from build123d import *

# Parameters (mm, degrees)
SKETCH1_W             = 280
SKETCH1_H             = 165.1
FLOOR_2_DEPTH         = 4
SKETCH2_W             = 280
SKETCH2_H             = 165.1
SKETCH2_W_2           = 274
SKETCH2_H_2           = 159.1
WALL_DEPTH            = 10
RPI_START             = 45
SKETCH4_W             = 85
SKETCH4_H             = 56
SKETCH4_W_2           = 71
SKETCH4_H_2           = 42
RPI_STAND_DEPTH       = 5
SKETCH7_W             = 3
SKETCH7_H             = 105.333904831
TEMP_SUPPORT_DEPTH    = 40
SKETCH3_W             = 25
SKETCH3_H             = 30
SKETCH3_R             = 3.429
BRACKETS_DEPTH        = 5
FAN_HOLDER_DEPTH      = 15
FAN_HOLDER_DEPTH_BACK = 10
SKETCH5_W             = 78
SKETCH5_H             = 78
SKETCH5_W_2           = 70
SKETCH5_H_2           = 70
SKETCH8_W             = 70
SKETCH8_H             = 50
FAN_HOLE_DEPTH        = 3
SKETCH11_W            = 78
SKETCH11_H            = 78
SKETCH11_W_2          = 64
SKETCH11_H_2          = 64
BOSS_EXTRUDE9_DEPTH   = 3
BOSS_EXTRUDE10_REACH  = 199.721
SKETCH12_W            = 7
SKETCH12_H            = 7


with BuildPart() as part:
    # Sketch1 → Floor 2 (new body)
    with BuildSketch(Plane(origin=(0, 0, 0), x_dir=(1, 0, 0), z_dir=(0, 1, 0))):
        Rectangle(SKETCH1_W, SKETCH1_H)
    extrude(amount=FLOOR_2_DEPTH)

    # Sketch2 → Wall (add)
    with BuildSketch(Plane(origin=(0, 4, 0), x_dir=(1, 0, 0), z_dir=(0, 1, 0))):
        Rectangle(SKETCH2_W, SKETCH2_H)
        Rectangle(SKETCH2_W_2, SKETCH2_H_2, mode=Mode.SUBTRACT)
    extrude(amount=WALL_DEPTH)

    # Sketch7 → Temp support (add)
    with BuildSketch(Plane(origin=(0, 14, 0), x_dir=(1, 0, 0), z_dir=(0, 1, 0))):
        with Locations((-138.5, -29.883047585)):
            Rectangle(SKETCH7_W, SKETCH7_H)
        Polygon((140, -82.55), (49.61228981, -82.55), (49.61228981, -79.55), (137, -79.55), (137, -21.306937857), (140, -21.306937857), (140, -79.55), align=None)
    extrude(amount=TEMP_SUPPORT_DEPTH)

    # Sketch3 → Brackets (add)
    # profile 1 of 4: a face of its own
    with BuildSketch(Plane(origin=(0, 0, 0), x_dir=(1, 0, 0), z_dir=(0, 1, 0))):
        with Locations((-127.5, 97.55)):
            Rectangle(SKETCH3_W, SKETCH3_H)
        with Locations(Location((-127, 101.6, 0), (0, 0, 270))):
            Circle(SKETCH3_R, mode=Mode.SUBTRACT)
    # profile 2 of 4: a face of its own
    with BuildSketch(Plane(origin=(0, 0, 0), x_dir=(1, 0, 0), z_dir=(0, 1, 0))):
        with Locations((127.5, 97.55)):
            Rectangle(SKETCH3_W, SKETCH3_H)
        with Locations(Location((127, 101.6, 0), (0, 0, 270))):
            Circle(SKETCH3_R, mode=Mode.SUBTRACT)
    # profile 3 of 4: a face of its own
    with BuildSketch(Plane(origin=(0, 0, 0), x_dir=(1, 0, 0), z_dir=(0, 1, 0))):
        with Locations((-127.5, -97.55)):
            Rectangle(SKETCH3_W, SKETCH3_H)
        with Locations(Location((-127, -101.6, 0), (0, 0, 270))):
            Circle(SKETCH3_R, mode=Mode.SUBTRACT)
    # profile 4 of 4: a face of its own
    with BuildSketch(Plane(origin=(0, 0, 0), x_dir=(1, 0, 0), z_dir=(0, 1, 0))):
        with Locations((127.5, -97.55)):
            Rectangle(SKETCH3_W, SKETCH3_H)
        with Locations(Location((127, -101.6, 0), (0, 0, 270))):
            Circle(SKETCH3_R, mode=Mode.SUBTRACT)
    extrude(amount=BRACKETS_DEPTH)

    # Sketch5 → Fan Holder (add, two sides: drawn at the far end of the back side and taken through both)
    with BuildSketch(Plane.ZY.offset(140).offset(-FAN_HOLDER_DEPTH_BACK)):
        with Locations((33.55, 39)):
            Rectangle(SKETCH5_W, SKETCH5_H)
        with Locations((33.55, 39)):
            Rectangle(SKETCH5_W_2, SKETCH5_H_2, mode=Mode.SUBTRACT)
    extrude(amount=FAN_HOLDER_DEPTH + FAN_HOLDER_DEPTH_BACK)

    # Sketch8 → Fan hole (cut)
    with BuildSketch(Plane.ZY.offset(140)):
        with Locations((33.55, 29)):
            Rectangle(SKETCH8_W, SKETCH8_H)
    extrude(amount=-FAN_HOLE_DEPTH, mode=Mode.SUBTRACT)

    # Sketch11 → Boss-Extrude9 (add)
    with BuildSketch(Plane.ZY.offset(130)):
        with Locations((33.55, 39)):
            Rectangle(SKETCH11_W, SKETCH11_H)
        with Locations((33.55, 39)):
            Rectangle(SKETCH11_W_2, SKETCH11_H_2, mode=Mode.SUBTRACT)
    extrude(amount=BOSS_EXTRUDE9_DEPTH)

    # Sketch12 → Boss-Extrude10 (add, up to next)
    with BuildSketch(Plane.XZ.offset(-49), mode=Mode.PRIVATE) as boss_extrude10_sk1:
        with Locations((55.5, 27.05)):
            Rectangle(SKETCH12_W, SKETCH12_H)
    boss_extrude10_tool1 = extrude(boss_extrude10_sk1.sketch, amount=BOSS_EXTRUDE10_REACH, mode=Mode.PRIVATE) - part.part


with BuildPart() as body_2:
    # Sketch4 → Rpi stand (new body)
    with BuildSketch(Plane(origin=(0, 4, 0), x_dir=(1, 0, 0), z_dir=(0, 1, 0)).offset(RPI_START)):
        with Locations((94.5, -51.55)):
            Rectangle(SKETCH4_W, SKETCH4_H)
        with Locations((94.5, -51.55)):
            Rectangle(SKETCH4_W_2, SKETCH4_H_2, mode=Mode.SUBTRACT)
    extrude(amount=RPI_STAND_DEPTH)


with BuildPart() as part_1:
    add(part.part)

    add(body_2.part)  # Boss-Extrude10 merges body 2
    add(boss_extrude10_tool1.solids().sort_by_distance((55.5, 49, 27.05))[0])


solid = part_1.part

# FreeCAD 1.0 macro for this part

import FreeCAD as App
import Part
import Sketcher
from FreeCAD import Vector
Q = App.Units.Quantity


def add_polygon(sketch, points):
    """Adds a closed chain of lines whose ends are joined by coincident constraints."""
    first, n = sketch.GeometryCount, len(points)
    for a, b in zip(points, points[1:] + points[:1]):
        sketch.addGeometry(Part.LineSegment(App.Vector(*a, 0), App.Vector(*b, 0)), False)
    for i in range(n):
        sketch.addConstraint(Sketcher.Constraint("Coincident", first + i, 2, first + (i + 1) % n, 1))

doc = App.newDocument("Part")
body = doc.addObject("PartDesign::Body", "Body")

# Sketch on XZ plane
sketch1 = body.newObject("Sketcher::SketchObject", "Sketch")
sketch1.AttachmentSupport = (doc.getObject("XZ_Plane"), [""])
sketch1.MapMode = "FlatFace"
add_polygon(sketch1, [(-140, -83), (-140, 83), (140, 83), (140, -83)])  # lines 0-3
sketch1.addConstraint(Sketcher.Constraint("Vertical", 0))
sketch1.addConstraint(Sketcher.Constraint("Horizontal", 1))
sketch1.addConstraint(Sketcher.Constraint("Vertical", 2))
sketch1.addConstraint(Sketcher.Constraint("Horizontal", 3))
sketch1.addConstraint(Sketcher.Constraint("Symmetric", 0, 2, 2, 2, -1, 1))
sketch1.addConstraint(Sketcher.Constraint("DistanceX", 1, 1, 1, 2, Q("280 mm")))
sketch1.addConstraint(Sketcher.Constraint("DistanceY", 0, 1, 0, 2, Q("165.1 mm")))
pad1 = body.newObject("PartDesign::Pad", "Pad")
pad1.Profile = sketch1
pad1.Length = 4
pad1.Reversed = True

# Sketch on XZ plane
sketch2 = body.newObject("Sketcher::SketchObject", "Sketch001")
sketch2.AttachmentSupport = (doc.getObject("XZ_Plane"), [""])
sketch2.MapMode = "FlatFace"
sketch2.AttachmentOffset = App.Placement(Vector(0, 0, -4), App.Rotation())
add_polygon(sketch2, [(-140, -83), (-140, 83), (140, 83), (140, -83)])  # lines 0-3
add_polygon(sketch2, [(137, 80), (-137, 80), (-137, -80), (137, -80)])  # lines 4-7
sketch2.addConstraint(Sketcher.Constraint("Vertical", 0))
sketch2.addConstraint(Sketcher.Constraint("Horizontal", 1))
sketch2.addConstraint(Sketcher.Constraint("Vertical", 2))
sketch2.addConstraint(Sketcher.Constraint("Horizontal", 3))
sketch2.addConstraint(Sketcher.Constraint("Horizontal", 4))
sketch2.addConstraint(Sketcher.Constraint("Vertical", 5))
sketch2.addConstraint(Sketcher.Constraint("Horizontal", 6))
sketch2.addConstraint(Sketcher.Constraint("Vertical", 7))
sketch2.addConstraint(Sketcher.Constraint("Symmetric", 0, 2, 2, 2, -1, 1))
sketch2.addConstraint(Sketcher.Constraint("Symmetric", 4, 2, 6, 2, -1, 1))
sketch2.addConstraint(Sketcher.Constraint("DistanceX", 1, 1, 1, 2, Q("280 mm")))
sketch2.addConstraint(Sketcher.Constraint("DistanceX", 4, 2, 4, 1, Q("274 mm")))
sketch2.addConstraint(Sketcher.Constraint("DistanceY", 0, 1, 0, 2, Q("165.1 mm")))
sketch2.addConstraint(Sketcher.Constraint("DistanceY", 5, 2, 5, 1, Q("159.1 mm")))
pad2 = body.newObject("PartDesign::Pad", "Pad001")
pad2.Profile = sketch2
pad2.Length = 10
pad2.Reversed = True

# Sketch on XZ plane
sketch3 = body.newObject("Sketcher::SketchObject", "Sketch002")
sketch3.AttachmentSupport = (doc.getObject("XZ_Plane"), [""])
sketch3.MapMode = "FlatFace"
sketch3.AttachmentOffset = App.Placement(Vector(0, 0, -14), App.Rotation())
add_polygon(sketch3, [(-140, -22.8), (-140, 82.6), (-137, 82.6), (-137, -22.8)])  # lines 0-3
add_polygon(sketch3, [(49.6, 82.5), (140, 82.5), (140, 21.3), (137, 21.3), (137, 79.5), (49.6, 79.5)])  # lines 4-9
sketch3.addConstraint(Sketcher.Constraint("Vertical", 0))
sketch3.addConstraint(Sketcher.Constraint("Horizontal", 1))
sketch3.addConstraint(Sketcher.Constraint("Vertical", 2))
sketch3.addConstraint(Sketcher.Constraint("Horizontal", 3))
sketch3.addConstraint(Sketcher.Constraint("Horizontal", 4))
sketch3.addConstraint(Sketcher.Constraint("Vertical", 5))
sketch3.addConstraint(Sketcher.Constraint("Horizontal", 6))
sketch3.addConstraint(Sketcher.Constraint("Vertical", 7))
sketch3.addConstraint(Sketcher.Constraint("Horizontal", 8))
sketch3.addConstraint(Sketcher.Constraint("Vertical", 9))
sketch3.addConstraint(Sketcher.Constraint("Symmetric", 0, 2, 4, 2, -2))
sketch3.addConstraint(Sketcher.Constraint("Equal", 3, 6))
sketch3.addConstraint(Sketcher.Constraint("Equal", 6, 9))
sketch3.addConstraint(Sketcher.Constraint("DistanceX", 1, 1, 1, 2, Q("3 mm")))
sketch3.addConstraint(Sketcher.Constraint("DistanceX", 0, 2, -1, 1, Q("140 mm")))
sketch3.addConstraint(Sketcher.Constraint("DistanceY", -1, 1, 0, 2, Q("82.55 mm")))
sketch3.addConstraint(Sketcher.Constraint("DistanceX", 4, 1, 4, 2, Q("90.38771 mm")))
sketch3.addConstraint(Sketcher.Constraint("DistanceY", 0, 1, 0, 2, Q("105.333905 mm")))
sketch3.addConstraint(Sketcher.Constraint("DistanceY", 5, 2, 5, 1, Q("61.243062 mm")))
pad3 = body.newObject("PartDesign::Pad", "Pad002")
pad3.Profile = sketch3
pad3.Length = 40
pad3.Reversed = True

# Sketch on XZ plane
sketch4 = body.newObject("Sketcher::SketchObject", "Sketch003")
sketch4.AttachmentSupport = (doc.getObject("XZ_Plane"), [""])
sketch4.MapMode = "FlatFace"
add_polygon(sketch4, [(-140, -112.5), (-140, -82.5), (-115, -82.5), (-115, -112.5)])  # lines 0-3
sketch4.addGeometry(Part.Circle(Vector(-127, -101.6, 0), Vector(0, 0, 1), 3.4), False)  # 4
add_polygon(sketch4, [(115, -112.5), (115, -82.5), (140, -82.5), (140, -112.5)])  # lines 5-8
sketch4.addGeometry(Part.Circle(Vector(127, -101.6, 0), Vector(0, 0, 1), 3.4), False)  # 9
add_polygon(sketch4, [(-140, 82.5), (-140, 112.5), (-115, 112.5), (-115, 82.5)])  # lines 10-13
sketch4.addGeometry(Part.Circle(Vector(-127, 101.6, 0), Vector(0, 0, 1), 3.4), False)  # 14
add_polygon(sketch4, [(115, 82.5), (115, 112.5), (140, 112.5), (140, 82.5)])  # lines 15-18
sketch4.addGeometry(Part.Circle(Vector(127, 101.6, 0), Vector(0, 0, 1), 3.4), False)  # 19
sketch4.addConstraint(Sketcher.Constraint("Vertical", 0))
sketch4.addConstraint(Sketcher.Constraint("Horizontal", 1))
sketch4.addConstraint(Sketcher.Constraint("Vertical", 2))
sketch4.addConstraint(Sketcher.Constraint("Horizontal", 3))
sketch4.addConstraint(Sketcher.Constraint("Vertical", 5))
sketch4.addConstraint(Sketcher.Constraint("Horizontal", 6))
sketch4.addConstraint(Sketcher.Constraint("Vertical", 7))
sketch4.addConstraint(Sketcher.Constraint("Horizontal", 8))
sketch4.addConstraint(Sketcher.Constraint("Vertical", 10))
sketch4.addConstraint(Sketcher.Constraint("Horizontal", 11))
sketch4.addConstraint(Sketcher.Constraint("Vertical", 12))
sketch4.addConstraint(Sketcher.Constraint("Horizontal", 13))
sketch4.addConstraint(Sketcher.Constraint("Vertical", 15))
sketch4.addConstraint(Sketcher.Constraint("Horizontal", 16))
sketch4.addConstraint(Sketcher.Constraint("Vertical", 17))
sketch4.addConstraint(Sketcher.Constraint("Horizontal", 18))
sketch4.addConstraint(Sketcher.Constraint("Equal", 4, 9))
sketch4.addConstraint(Sketcher.Constraint("Equal", 9, 14))
sketch4.addConstraint(Sketcher.Constraint("Equal", 14, 19))
sketch4.addConstraint(Sketcher.Constraint("Symmetric", 9, 3, 14, 3, -1, 1))
sketch4.addConstraint(Sketcher.Constraint("Symmetric", 4, 3, 19, 3, -1, 1))
sketch4.addConstraint(Sketcher.Constraint("Symmetric", 7, 2, 10, 2, -1, 1))
sketch4.addConstraint(Sketcher.Constraint("Symmetric", 5, 2, 12, 2, -1, 1))
sketch4.addConstraint(Sketcher.Constraint("Symmetric", 2, 2, 15, 2, -1, 1))
sketch4.addConstraint(Sketcher.Constraint("Symmetric", 0, 2, 17, 2, -1, 1))
sketch4.addConstraint(Sketcher.Constraint("Symmetric", 4, 3, 9, 3, -2))
sketch4.addConstraint(Sketcher.Constraint("Symmetric", 1, 2, 5, 2, -2))
sketch4.addConstraint(Sketcher.Constraint("Symmetric", 3, 2, 7, 2, -2))
sketch4.addConstraint(Sketcher.Constraint("DistanceX", 1, 1, 1, 2, Q("25 mm")))
sketch4.addConstraint(Sketcher.Constraint("DistanceY", 0, 1, 0, 2, Q("30 mm")))
sketch4.addConstraint(Sketcher.Constraint("Diameter", 4, Q("6.858 mm")))
sketch4.addConstraint(Sketcher.Constraint("DistanceX", 4, 3, -1, 1, Q("127 mm")))
sketch4.addConstraint(Sketcher.Constraint("DistanceX", 0, 2, -1, 1, Q("140 mm")))
sketch4.addConstraint(Sketcher.Constraint("DistanceY", 4, 3, -1, 1, Q("101.6 mm")))
sketch4.addConstraint(Sketcher.Constraint("DistanceY", 0, 2, 10, 2, Q("195.1 mm")))
pad4 = body.newObject("PartDesign::Pad", "Pad003")
pad4.Profile = sketch4
pad4.Length = 5
pad4.Reversed = True

# Sketch on YZ plane
sketch5 = body.newObject("Sketcher::SketchObject", "Sketch004")
sketch5.AttachmentSupport = (doc.getObject("YZ_Plane"), [""])
sketch5.MapMode = "FlatFace"
sketch5.AttachmentOffset = App.Placement(Vector(0, 0, -140), App.Rotation())
add_polygon(sketch5, [(78, -5), (0, -5), (0, 73), (78, 73)])  # lines 0-3
add_polygon(sketch5, [(4, 69), (4, -1), (74, -1), (74, 69)])  # lines 4-7
sketch5.addConstraint(Sketcher.Constraint("Horizontal", 0))
sketch5.addConstraint(Sketcher.Constraint("Vertical", 1))
sketch5.addConstraint(Sketcher.Constraint("Horizontal", 2))
sketch5.addConstraint(Sketcher.Constraint("Vertical", 3))
sketch5.addConstraint(Sketcher.Constraint("Vertical", 4))
sketch5.addConstraint(Sketcher.Constraint("Horizontal", 5))
sketch5.addConstraint(Sketcher.Constraint("Vertical", 6))
sketch5.addConstraint(Sketcher.Constraint("Horizontal", 7))
sketch5.addConstraint(Sketcher.Constraint("PointOnObject", 0, 2, -2))
sketch5.addConstraint(Sketcher.Constraint("Equal", 2, 1))
sketch5.addConstraint(Sketcher.Constraint("Equal", 7, 4))
sketch5.addConstraint(Sketcher.Constraint("DistanceX", 0, 2, 0, 1, Q("78 mm")))
sketch5.addConstraint(Sketcher.Constraint("DistanceX", 5, 1, 5, 2, Q("70 mm")))
sketch5.addConstraint(Sketcher.Constraint("DistanceX", -1, 1, 4, 2, Q("4 mm")))
sketch5.addConstraint(Sketcher.Constraint("DistanceY", 0, 2, 4, 2, Q("4 mm")))
sketch5.addConstraint(Sketcher.Constraint("DistanceY", 0, 2, -1, 1, Q("5.45 mm")))
pad5 = body.newObject("PartDesign::Pad", "Pad004")
pad5.Profile = sketch5
pad5.Type = "TwoLengths"
pad5.Length = 15
pad5.Length2 = 10
pad5.Reversed = True

# Sketch on YZ plane
sketch6 = body.newObject("Sketcher::SketchObject", "Sketch005")
sketch6.AttachmentSupport = (doc.getObject("YZ_Plane"), [""])
sketch6.MapMode = "FlatFace"
sketch6.AttachmentOffset = App.Placement(Vector(0, 0, -140), App.Rotation())
add_polygon(sketch6, [(54, -1), (4, -1), (4, 69), (54, 69)])  # lines 0-3
sketch6.addConstraint(Sketcher.Constraint("Horizontal", 0))
sketch6.addConstraint(Sketcher.Constraint("Vertical", 1))
sketch6.addConstraint(Sketcher.Constraint("Horizontal", 2))
sketch6.addConstraint(Sketcher.Constraint("Vertical", 3))
sketch6.addConstraint(Sketcher.Constraint("DistanceX", 0, 2, 0, 1, Q("50 mm")))
sketch6.addConstraint(Sketcher.Constraint("DistanceY", 1, 1, 1, 2, Q("70 mm")))
sketch6.addConstraint(Sketcher.Constraint("DistanceX", -1, 1, 0, 2, Q("4 mm")))
sketch6.addConstraint(Sketcher.Constraint("DistanceY", 0, 2, -1, 1, Q("1.45 mm")))
pocket1 = body.newObject("PartDesign::Pocket", "Pocket")
pocket1.Profile = sketch6
pocket1.Length = 3
pocket1.Reversed = True

# Sketch on YZ plane
sketch7 = body.newObject("Sketcher::SketchObject", "Sketch006")
sketch7.AttachmentSupport = (doc.getObject("YZ_Plane"), [""])
sketch7.MapMode = "FlatFace"
sketch7.AttachmentOffset = App.Placement(Vector(0, 0, -130), App.Rotation())
add_polygon(sketch7, [(78, -5), (0, -5), (0, 73), (78, 73)])  # lines 0-3
add_polygon(sketch7, [(7, 66), (7, 2), (71, 2), (71, 66)])  # lines 4-7
sketch7.addConstraint(Sketcher.Constraint("Horizontal", 0))
sketch7.addConstraint(Sketcher.Constraint("Vertical", 1))
sketch7.addConstraint(Sketcher.Constraint("Horizontal", 2))
sketch7.addConstraint(Sketcher.Constraint("Vertical", 3))
sketch7.addConstraint(Sketcher.Constraint("Vertical", 4))
sketch7.addConstraint(Sketcher.Constraint("Horizontal", 5))
sketch7.addConstraint(Sketcher.Constraint("Vertical", 6))
sketch7.addConstraint(Sketcher.Constraint("Horizontal", 7))
sketch7.addConstraint(Sketcher.Constraint("PointOnObject", 0, 2, -2))
sketch7.addConstraint(Sketcher.Constraint("Equal", 2, 1))
sketch7.addConstraint(Sketcher.Constraint("Equal", 7, 4))
sketch7.addConstraint(Sketcher.Constraint("DistanceX", 0, 2, 0, 1, Q("78 mm")))
sketch7.addConstraint(Sketcher.Constraint("DistanceX", 5, 1, 5, 2, Q("64 mm")))
sketch7.addConstraint(Sketcher.Constraint("DistanceX", -1, 1, 4, 2, Q("7 mm")))
sketch7.addConstraint(Sketcher.Constraint("DistanceY", 0, 2, 4, 2, Q("7 mm")))
sketch7.addConstraint(Sketcher.Constraint("DistanceY", 0, 2, -1, 1, Q("5.45 mm")))
pad6 = body.newObject("PartDesign::Pad", "Pad005")
pad6.Profile = sketch7
pad6.Length = 3
pad6.Reversed = True
body2 = doc.addObject("PartDesign::Body", "Body001")

# Sketch on XZ plane
sketch8 = body2.newObject("Sketcher::SketchObject", "Sketch007")
sketch8.AttachmentSupport = (doc.getObject("XZ_Plane001"), [""])
sketch8.MapMode = "FlatFace"
sketch8.AttachmentOffset = App.Placement(Vector(0, 0, -49), App.Rotation())
add_polygon(sketch8, [(52, 24), (52, 80), (137, 80), (137, 24)])  # lines 0-3
add_polygon(sketch8, [(130, 73), (59, 73), (59, 31), (130, 31)])  # lines 4-7
sketch8.addConstraint(Sketcher.Constraint("Vertical", 0))
sketch8.addConstraint(Sketcher.Constraint("Horizontal", 1))
sketch8.addConstraint(Sketcher.Constraint("Vertical", 2))
sketch8.addConstraint(Sketcher.Constraint("Horizontal", 3))
sketch8.addConstraint(Sketcher.Constraint("Horizontal", 4))
sketch8.addConstraint(Sketcher.Constraint("Vertical", 5))
sketch8.addConstraint(Sketcher.Constraint("Horizontal", 6))
sketch8.addConstraint(Sketcher.Constraint("Vertical", 7))
sketch8.addConstraint(Sketcher.Constraint("DistanceX", 1, 1, 1, 2, Q("85 mm")))
sketch8.addConstraint(Sketcher.Constraint("DistanceX", 4, 2, 4, 1, Q("71 mm")))
sketch8.addConstraint(Sketcher.Constraint("DistanceY", 0, 1, 0, 2, Q("56 mm")))
sketch8.addConstraint(Sketcher.Constraint("DistanceY", 5, 2, 5, 1, Q("42 mm")))
sketch8.addConstraint(Sketcher.Constraint("DistanceX", -1, 1, 0, 2, Q("52 mm")))
sketch8.addConstraint(Sketcher.Constraint("DistanceX", -1, 1, 4, 2, Q("59 mm")))
sketch8.addConstraint(Sketcher.Constraint("DistanceY", 4, 2, 0, 2, Q("7 mm")))
sketch8.addConstraint(Sketcher.Constraint("DistanceY", -1, 1, 0, 2, Q("79.55 mm")))
pad7 = body2.newObject("PartDesign::Pad", "Pad006")
pad7.Profile = sketch8
pad7.Length = 5
pad7.Reversed = True
doc.recompute()

boolean = body.newObject("PartDesign::Boolean", "Boolean")
boolean.Type = "Fuse"
boolean.addObjects([body2])

# Sketch on XZ plane
sketch9 = body.newObject("Sketcher::SketchObject", "Sketch008")
sketch9.AttachmentSupport = (doc.getObject("XZ_Plane"), [""])
sketch9.MapMode = "FlatFace"
sketch9.AttachmentOffset = App.Placement(Vector(0, 0, -49), App.Rotation())
add_polygon(sketch9, [(52, 31), (52, 24), (59, 24), (59, 31)])  # lines 0-3
sketch9.addConstraint(Sketcher.Constraint("Vertical", 0))
sketch9.addConstraint(Sketcher.Constraint("Horizontal", 1))
sketch9.addConstraint(Sketcher.Constraint("Vertical", 2))
sketch9.addConstraint(Sketcher.Constraint("Horizontal", 3))
sketch9.addConstraint(Sketcher.Constraint("Equal", 3, 0))
sketch9.addConstraint(Sketcher.Constraint("DistanceX", 1, 1, 1, 2, Q("7 mm")))
sketch9.addConstraint(Sketcher.Constraint("DistanceX", -1, 1, 0, 2, Q("52 mm")))
sketch9.addConstraint(Sketcher.Constraint("DistanceY", -1, 1, 0, 2, Q("23.55 mm")))
pad8 = body.newObject("PartDesign::Pad", "Pad007")
pad8.Profile = sketch9
pad8.Type = "UpToFirst"

doc.recompute()
